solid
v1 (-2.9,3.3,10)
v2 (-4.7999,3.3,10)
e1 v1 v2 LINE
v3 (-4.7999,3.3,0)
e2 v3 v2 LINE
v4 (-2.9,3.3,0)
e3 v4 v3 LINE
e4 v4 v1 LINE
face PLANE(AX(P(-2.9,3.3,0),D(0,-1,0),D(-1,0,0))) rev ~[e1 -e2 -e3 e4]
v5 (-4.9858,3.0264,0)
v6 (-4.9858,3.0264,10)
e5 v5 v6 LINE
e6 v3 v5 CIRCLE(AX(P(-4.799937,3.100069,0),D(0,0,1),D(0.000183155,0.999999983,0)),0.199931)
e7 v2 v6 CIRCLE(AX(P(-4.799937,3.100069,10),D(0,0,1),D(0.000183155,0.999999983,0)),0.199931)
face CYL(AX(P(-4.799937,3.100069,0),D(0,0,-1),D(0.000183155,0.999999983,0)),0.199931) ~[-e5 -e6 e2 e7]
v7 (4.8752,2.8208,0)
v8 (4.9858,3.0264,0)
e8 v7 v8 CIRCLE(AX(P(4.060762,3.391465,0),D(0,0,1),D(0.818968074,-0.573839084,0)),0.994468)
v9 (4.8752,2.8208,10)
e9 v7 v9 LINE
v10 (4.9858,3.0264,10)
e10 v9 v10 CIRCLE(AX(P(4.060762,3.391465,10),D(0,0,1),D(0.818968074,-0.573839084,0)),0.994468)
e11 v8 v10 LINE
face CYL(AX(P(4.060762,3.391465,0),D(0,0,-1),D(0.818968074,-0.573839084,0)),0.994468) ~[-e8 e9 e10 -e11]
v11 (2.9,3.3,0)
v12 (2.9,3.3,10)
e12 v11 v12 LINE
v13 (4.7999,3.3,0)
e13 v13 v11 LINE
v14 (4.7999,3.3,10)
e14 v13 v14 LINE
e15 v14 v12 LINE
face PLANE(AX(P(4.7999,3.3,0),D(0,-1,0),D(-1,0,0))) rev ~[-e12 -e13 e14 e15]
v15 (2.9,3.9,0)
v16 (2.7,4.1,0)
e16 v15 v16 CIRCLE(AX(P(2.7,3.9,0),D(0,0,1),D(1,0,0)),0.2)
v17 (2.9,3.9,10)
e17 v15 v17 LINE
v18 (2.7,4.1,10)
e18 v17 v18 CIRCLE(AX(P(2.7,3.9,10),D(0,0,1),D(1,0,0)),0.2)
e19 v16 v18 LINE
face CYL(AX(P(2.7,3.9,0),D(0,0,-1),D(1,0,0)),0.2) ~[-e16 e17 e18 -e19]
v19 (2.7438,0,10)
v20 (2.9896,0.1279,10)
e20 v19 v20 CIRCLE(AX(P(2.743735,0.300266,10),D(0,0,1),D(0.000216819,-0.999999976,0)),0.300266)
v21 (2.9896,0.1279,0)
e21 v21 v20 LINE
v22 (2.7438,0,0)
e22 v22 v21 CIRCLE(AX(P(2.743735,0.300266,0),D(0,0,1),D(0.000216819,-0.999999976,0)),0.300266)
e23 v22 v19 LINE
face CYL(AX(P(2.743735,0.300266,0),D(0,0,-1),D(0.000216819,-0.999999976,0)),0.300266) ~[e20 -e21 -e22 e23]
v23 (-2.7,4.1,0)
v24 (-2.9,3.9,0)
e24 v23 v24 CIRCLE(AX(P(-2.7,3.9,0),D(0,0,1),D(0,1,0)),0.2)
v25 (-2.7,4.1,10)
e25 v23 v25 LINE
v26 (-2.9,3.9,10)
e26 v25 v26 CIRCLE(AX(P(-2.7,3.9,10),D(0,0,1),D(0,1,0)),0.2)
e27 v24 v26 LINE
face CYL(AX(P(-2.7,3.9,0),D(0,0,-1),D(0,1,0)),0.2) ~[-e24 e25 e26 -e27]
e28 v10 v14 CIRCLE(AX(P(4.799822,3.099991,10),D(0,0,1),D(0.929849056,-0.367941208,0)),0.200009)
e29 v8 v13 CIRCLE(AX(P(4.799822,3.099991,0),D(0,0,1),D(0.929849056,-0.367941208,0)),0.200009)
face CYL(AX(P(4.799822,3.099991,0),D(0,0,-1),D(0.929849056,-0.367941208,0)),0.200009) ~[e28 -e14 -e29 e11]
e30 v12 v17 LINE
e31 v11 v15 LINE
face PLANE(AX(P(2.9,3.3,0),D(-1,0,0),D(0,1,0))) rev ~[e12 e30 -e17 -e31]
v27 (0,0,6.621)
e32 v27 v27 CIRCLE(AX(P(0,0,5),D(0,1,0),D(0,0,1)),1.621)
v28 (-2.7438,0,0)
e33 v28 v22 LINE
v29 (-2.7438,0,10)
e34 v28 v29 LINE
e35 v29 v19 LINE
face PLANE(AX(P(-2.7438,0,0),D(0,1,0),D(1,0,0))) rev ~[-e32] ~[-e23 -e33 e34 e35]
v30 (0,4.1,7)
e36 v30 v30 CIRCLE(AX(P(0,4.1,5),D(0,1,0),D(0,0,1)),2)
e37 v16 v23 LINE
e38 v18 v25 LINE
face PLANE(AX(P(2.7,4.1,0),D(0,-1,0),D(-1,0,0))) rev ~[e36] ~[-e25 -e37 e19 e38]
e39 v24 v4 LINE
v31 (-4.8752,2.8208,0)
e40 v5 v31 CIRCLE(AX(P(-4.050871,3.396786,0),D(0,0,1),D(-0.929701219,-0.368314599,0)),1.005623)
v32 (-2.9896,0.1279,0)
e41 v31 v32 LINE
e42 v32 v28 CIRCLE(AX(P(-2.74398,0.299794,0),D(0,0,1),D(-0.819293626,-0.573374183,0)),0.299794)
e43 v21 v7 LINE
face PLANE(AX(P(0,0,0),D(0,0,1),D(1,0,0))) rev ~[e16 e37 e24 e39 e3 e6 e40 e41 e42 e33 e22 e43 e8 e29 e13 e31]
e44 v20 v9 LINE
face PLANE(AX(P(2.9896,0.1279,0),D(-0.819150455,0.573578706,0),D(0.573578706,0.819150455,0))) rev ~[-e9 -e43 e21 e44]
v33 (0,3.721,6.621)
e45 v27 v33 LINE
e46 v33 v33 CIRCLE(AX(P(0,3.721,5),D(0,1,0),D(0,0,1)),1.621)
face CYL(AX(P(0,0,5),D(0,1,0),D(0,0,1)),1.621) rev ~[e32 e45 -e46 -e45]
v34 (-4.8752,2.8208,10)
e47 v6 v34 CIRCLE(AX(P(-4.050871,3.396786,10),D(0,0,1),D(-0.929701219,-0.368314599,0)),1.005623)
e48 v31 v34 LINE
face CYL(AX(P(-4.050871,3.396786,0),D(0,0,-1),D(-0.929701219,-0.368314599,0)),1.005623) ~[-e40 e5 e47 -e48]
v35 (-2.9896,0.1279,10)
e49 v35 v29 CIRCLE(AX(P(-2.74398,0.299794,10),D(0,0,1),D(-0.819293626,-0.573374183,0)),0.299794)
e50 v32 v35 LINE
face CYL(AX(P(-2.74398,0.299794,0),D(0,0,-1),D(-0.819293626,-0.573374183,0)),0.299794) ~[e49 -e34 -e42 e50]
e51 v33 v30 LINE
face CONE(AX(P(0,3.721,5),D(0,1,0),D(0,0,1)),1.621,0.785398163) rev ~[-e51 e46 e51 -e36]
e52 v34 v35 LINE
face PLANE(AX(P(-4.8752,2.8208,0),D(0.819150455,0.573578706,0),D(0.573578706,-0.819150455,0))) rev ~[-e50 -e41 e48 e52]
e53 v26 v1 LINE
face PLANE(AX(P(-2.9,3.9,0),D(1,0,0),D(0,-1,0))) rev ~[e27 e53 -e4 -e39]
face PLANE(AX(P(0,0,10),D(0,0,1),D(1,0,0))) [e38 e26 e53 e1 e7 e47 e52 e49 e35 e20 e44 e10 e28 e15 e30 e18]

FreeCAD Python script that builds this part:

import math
import FreeCAD as App
import Part
import Sketcher

V = App.Vector
Q = App.Units.Quantity


def add_polygon(sketch, points):
    """Adds a closed chain of lines whose ends are joined by coincident constraints."""
    first, n = sketch.GeometryCount, len(points)
    for a, b in zip(points, points[1:] + points[:1]):
        sketch.addGeometry(Part.LineSegment(App.Vector(*a, 0), App.Vector(*b, 0)), False)
    for i in range(n):
        sketch.addConstraint(Sketcher.Constraint("Coincident", first + i, 2, first + (i + 1) % n, 1))

doc = App.newDocument("Part")
params = doc.addObject("Spreadsheet::Sheet", "Params")
for row, (alias, value) in enumerate([
    ("sketch1_radius", "0.2 mm"),
    ("sketch1_radius2", "0.3 mm"),
    ("sketch1_width", "1.9 mm"),
    ("sketch1_width2", "5.4 mm"),
    ("sketch1_height", "0.6 mm"),
    ("pad1_length", "10 mm"),
    ("sketch2_height", "2 mm"),
    ("sketch2_width", "4.1 mm"),
    ("groove_angle", "360 deg"),
], start=1):
    params.set(f"A{row}", alias)
    params.set(f"B{row}", "=" + value)
    params.setAlias(f"B{row}", alias)

body = doc.addObject("PartDesign::Body", "Body")

# Sketch on XY plane
sketch1 = doc.addObject("Sketcher::SketchObject", "Sketch")
body.addObject(sketch1)
sketch1.AttachmentSupport = (doc.XY_Plane, [""])
sketch1.MapMode = "FlatFace"
sketch1.addGeometry([
    Part.LineSegment(V(-2.9, 3.3, 0), V(-4.8, 3.3, 0)),  # 0
    Part.ArcOfCircle(Part.Circle(V(-4.8, 3.1, 0), V(0, 0, 1), 0.2), math.radians(90), math.radians(202)),  # 1
    Part.ArcOfCircle(Part.Circle(V(-4.05, 3.4, 0), V(0, 0, 1), 1.01), math.radians(-158.39), math.radians(-145.06)),  # 2
    Part.LineSegment(V(-4.88, 2.82, 0), V(-2.99, 0.13, 0)),  # 3
    Part.ArcOfCircle(Part.Circle(V(-2.74, 0.3, 0), V(0, 0, 1), 0.3), math.radians(-145), math.radians(-90)),  # 4
    Part.LineSegment(V(-2.74, 0, 0), V(2.74, 0, 0)),  # 5
    Part.ArcOfCircle(Part.Circle(V(2.74, 0.3, 0), V(0, 0, 1), 0.3), math.radians(-90), math.radians(-35)),  # 6
    Part.LineSegment(V(2.99, 0.13, 0), V(4.88, 2.82, 0)),  # 7
    Part.ArcOfCircle(Part.Circle(V(4.06, 3.39, 0), V(0, 0, 1), 0.99), math.radians(-35.02), math.radians(-21.54)),  # 8
    Part.ArcOfCircle(Part.Circle(V(4.8, 3.1, 0), V(0, 0, 1), 0.2), math.radians(-22), math.radians(90)),  # 9
    Part.LineSegment(V(4.8, 3.3, 0), V(2.9, 3.3, 0)),  # 10
    Part.LineSegment(V(2.9, 3.3, 0), V(2.9, 3.9, 0)),  # 11
    Part.ArcOfCircle(Part.Circle(V(2.7, 3.9, 0), V(0, 0, 1), 0.2), math.radians(0), math.radians(90)),  # 12
    Part.LineSegment(V(2.7, 4.1, 0), V(-2.7, 4.1, 0)),  # 13
    Part.ArcOfCircle(Part.Circle(V(-2.7, 3.9, 0), V(0, 0, 1), 0.2), math.radians(90), math.radians(180)),  # 14
    Part.LineSegment(V(-2.9, 3.9, 0), V(-2.9, 3.3, 0)),  # 15
], False)
sketch1.addConstraint([
    Sketcher.Constraint("Tangent", 0, 2, 1, 1),
    Sketcher.Constraint("Tangent", 1, 2, 2, 1),
    Sketcher.Constraint("Coincident", 2, 2, 3, 1),
    Sketcher.Constraint("Tangent", 3, 2, 4, 1),
    Sketcher.Constraint("Tangent", 4, 2, 5, 1),
    Sketcher.Constraint("Tangent", 5, 2, 6, 1),
    Sketcher.Constraint("Tangent", 6, 2, 7, 1),
    Sketcher.Constraint("Tangent", 7, 2, 8, 1),
    Sketcher.Constraint("Coincident", 8, 2, 9, 1),
    Sketcher.Constraint("Tangent", 9, 2, 10, 1),
    Sketcher.Constraint("Coincident", 10, 2, 11, 1),
    Sketcher.Constraint("Tangent", 11, 2, 12, 1),
    Sketcher.Constraint("Tangent", 12, 2, 13, 1),
    Sketcher.Constraint("Tangent", 13, 2, 14, 1),
    Sketcher.Constraint("Tangent", 14, 2, 15, 1),
    Sketcher.Constraint("Coincident", 15, 2, 0, 1),
    Sketcher.Constraint("Horizontal", 0),
    Sketcher.Constraint("Horizontal", 5),
    Sketcher.Constraint("Horizontal", 10),
    Sketcher.Constraint("Vertical", 11),
    Sketcher.Constraint("Horizontal", 13),
    Sketcher.Constraint("Vertical", 15),
    Sketcher.Constraint("Equal", 4, 6),
    Sketcher.Constraint("Equal", 1, 9),
    Sketcher.Constraint("Equal", 9, 12),
    Sketcher.Constraint("Equal", 12, 14),
    Sketcher.Constraint("Symmetric", 4, 2, 5, 2, -1, 1),
    Sketcher.Constraint("Symmetric", 1, 3, 9, 3, -2),
    Sketcher.Constraint("Symmetric", 2, 2, 7, 2, -2),
    Sketcher.Constraint("Horizontal", 1, 2, 8, 2),
    Sketcher.Constraint("Equal", 0, 10),
    Sketcher.Constraint("Radius", 1, 0.2),
    Sketcher.Constraint("Radius", 4, 0.3),
    Sketcher.Constraint("Angle", 3, Q("-54.9998 deg")),
    Sketcher.Constraint("DistanceX", 0, 2, 0, 1, 1.9),
    Sketcher.Constraint("DistanceX", 13, 2, 13, 1, 5.4),
    Sketcher.Constraint("DistanceY", 11, 1, 11, 2, 0.6),
    Sketcher.Constraint("DistanceY", 4, 3, 0, 2, 3.0),
    Sketcher.Constraint("Radius", 2, 1.0056),
    Sketcher.Constraint("Radius", 8, 0.9945),
    Sketcher.Constraint("DistanceX", 5, 1, 5, 2, 5.4876),
])
sketch1.setExpression("Constraints[31]", "Params.sketch1_radius")
sketch1.setExpression("Constraints[32]", "Params.sketch1_radius2")
sketch1.setExpression("Constraints[34]", "Params.sketch1_width")
sketch1.setExpression("Constraints[35]", "Params.sketch1_width2")
sketch1.setExpression("Constraints[36]", "Params.sketch1_height")
pad1 = doc.addObject("PartDesign::Pad", "Pad")
body.addObject(pad1)
pad1.Profile = sketch1
pad1.setExpression("Length", "Params.pad1_length")

# Sketch on YZ plane
sketch2 = doc.addObject("Sketcher::SketchObject", "Sketch001")
body.addObject(sketch2)
sketch2.AttachmentSupport = (doc.YZ_Plane, [""])
sketch2.MapMode = "FlatFace"
add_polygon(sketch2, [(0, 5), (4.1, 5), (4.1, 7), (3.7, 6.6), (0, 6.6)])  # lines 0-4
sketch2.addGeometry(Part.LineSegment(V(0, 5, 0), V(4.1, 5, 0)), True)  # axis
sketch2.addConstraint([
    Sketcher.Constraint("Horizontal", 0),
    Sketcher.Constraint("Vertical", 1),
    Sketcher.Constraint("Horizontal", 3),
    Sketcher.Constraint("Vertical", 4),
    Sketcher.Constraint("Horizontal", 5),
    Sketcher.Constraint("Coincident", 5, 1, 4, 2),
    Sketcher.Constraint("PointOnObject", 3, 2, -2),
    Sketcher.Constraint("Vertical", 1, 2, 5, 2),
    Sketcher.Constraint("DistanceY", 1, 1, 1, 2, 2.0),
    Sketcher.Constraint("Angle", 2, Q("-135 deg")),
    Sketcher.Constraint("DistanceX", 0, 1, 0, 2, 4.1),
    Sketcher.Constraint("DistanceY", -1, 1, 0, 2, 5.0),
    Sketcher.Constraint("DistanceX", 3, 2, 3, 1, 3.721),
])
sketch2.setExpression("Constraints[13]", "Params.sketch2_height")
sketch2.setExpression("Constraints[15]", "Params.sketch2_width")
groove = doc.addObject("PartDesign::Groove", "Groove")
body.addObject(groove)
groove.Profile = sketch2
groove.ReferenceAxis = (sketch2, ["Axis0"])
groove.setExpression("Angle", "Params.groove_angle")

doc.recompute()
